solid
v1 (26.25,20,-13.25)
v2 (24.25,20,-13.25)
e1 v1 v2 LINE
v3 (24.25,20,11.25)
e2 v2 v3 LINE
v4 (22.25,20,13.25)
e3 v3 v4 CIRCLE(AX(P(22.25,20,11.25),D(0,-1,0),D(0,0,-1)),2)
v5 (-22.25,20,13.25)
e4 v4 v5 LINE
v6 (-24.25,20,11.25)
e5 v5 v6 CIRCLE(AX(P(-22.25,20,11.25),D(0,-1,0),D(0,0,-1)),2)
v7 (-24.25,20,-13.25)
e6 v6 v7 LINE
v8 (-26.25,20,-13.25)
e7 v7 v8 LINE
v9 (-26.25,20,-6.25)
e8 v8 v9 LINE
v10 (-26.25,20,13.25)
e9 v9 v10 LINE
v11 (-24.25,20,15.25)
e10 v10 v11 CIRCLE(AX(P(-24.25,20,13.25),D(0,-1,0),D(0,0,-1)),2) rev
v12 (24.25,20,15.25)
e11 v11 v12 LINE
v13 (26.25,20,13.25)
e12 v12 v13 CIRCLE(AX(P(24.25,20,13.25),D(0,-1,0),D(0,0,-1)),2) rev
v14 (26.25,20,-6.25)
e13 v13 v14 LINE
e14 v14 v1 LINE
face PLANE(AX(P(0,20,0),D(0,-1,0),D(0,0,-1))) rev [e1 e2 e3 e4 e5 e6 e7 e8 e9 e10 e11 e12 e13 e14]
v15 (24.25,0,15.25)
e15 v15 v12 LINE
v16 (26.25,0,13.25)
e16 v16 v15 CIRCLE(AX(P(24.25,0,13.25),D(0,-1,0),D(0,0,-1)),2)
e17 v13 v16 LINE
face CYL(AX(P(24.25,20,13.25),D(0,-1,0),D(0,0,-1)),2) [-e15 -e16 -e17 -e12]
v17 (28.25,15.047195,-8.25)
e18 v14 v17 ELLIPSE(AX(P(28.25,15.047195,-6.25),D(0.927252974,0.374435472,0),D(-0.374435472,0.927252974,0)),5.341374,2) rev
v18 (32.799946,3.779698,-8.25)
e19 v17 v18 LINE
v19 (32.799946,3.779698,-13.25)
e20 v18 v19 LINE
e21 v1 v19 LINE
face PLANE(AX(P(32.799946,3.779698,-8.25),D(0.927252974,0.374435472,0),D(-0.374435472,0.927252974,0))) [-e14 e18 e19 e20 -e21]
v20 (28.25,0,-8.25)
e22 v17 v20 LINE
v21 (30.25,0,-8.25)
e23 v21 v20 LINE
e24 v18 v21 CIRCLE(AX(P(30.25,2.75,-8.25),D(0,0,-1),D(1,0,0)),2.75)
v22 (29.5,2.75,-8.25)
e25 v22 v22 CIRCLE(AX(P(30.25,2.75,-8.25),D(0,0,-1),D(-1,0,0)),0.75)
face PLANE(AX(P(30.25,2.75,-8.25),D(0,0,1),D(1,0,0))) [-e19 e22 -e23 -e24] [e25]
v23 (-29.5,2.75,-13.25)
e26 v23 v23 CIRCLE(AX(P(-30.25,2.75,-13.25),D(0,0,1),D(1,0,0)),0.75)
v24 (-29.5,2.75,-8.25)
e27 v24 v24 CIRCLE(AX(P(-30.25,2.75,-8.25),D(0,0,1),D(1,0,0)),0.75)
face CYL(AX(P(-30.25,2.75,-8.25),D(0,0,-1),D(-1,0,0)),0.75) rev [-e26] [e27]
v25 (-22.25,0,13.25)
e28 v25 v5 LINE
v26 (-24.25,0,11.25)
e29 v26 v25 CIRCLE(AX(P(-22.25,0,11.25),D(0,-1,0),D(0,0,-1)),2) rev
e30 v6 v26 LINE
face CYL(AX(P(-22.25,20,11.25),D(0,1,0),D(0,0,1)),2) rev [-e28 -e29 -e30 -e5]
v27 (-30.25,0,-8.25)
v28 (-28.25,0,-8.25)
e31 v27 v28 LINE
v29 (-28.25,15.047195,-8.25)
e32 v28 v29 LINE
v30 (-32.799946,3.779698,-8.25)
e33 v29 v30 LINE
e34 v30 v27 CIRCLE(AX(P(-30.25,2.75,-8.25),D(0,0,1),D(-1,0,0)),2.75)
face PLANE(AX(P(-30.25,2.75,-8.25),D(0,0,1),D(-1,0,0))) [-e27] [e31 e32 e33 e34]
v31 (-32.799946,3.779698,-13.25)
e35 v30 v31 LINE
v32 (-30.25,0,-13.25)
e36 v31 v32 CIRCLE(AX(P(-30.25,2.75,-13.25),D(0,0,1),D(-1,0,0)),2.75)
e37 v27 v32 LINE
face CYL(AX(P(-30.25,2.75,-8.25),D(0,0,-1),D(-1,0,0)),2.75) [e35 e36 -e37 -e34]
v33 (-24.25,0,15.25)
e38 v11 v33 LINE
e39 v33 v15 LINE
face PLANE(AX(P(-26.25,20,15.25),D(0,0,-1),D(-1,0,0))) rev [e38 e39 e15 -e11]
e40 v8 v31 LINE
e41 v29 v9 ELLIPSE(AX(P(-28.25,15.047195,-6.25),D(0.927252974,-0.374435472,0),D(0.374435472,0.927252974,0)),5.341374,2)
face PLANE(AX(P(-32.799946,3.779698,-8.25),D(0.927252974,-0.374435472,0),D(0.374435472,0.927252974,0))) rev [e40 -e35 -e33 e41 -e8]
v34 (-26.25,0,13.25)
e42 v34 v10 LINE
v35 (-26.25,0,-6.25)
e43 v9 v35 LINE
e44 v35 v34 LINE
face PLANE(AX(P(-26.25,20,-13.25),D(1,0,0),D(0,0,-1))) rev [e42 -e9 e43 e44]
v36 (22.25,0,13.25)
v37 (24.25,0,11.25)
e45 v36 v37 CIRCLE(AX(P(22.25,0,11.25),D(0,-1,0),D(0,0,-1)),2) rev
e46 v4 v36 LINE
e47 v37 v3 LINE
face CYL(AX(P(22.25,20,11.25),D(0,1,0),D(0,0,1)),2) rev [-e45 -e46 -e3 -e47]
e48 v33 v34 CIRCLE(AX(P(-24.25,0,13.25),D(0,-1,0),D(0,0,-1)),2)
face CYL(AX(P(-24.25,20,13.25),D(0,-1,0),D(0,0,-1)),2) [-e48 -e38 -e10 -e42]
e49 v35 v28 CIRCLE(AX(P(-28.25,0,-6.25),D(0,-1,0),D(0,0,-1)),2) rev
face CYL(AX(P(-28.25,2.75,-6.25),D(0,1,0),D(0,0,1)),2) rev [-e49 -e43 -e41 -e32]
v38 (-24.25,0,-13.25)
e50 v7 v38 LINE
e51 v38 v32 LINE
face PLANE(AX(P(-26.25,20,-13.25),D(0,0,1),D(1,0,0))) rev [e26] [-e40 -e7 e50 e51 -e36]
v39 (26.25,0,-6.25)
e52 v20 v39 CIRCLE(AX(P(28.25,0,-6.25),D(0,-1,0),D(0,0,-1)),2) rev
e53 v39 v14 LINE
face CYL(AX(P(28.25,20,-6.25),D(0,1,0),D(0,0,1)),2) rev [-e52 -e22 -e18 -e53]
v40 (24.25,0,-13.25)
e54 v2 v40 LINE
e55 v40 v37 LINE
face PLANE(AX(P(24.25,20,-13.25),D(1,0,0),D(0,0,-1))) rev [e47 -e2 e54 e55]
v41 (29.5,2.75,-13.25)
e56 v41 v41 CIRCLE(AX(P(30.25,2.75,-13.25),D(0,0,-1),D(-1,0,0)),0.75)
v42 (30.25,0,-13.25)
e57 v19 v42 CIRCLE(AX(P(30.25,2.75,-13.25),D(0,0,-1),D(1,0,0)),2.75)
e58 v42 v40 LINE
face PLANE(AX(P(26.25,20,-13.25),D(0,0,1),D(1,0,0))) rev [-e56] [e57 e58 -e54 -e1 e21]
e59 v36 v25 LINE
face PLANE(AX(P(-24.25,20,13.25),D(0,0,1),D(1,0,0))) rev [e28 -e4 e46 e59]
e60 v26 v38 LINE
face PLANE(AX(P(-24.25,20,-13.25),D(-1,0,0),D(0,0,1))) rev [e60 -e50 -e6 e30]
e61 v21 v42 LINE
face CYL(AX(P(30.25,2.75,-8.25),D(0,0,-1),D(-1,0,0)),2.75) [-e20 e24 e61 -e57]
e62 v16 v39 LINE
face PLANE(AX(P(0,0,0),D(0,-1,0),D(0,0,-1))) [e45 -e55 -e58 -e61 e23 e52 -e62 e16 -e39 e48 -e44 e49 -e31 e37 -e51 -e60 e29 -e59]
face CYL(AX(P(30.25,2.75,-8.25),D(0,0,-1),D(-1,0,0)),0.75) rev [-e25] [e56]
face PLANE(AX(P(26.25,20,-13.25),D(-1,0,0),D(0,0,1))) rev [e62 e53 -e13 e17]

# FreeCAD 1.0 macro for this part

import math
import FreeCAD as App
import Part
import Sketcher

V = App.Vector


def edges_at(feature, points):
    """Names of the edges that pass closest to the given points."""
    edges = feature.Shape.Edges
    near = lambda p: min(range(len(edges)), key=lambda i: edges[i].distToShape(Part.Vertex(*p))[0])
    return sorted({f"Edge{near(p) + 1}" for p in points})


def add_polygon(sketch, points):
    """Adds a closed chain of lines whose ends are joined by coincident constraints."""
    first, n = sketch.GeometryCount, len(points)
    for a, b in zip(points, points[1:] + points[:1]):
        sketch.addGeometry(Part.LineSegment(App.Vector(*a, 0), App.Vector(*b, 0)), False)
    for i in range(n):
        sketch.addConstraint(Sketcher.Constraint("Coincident", first + i, 2, first + (i + 1) % n, 1))

doc = App.newDocument("Part")
params = doc.addObject("Spreadsheet::Sheet", "Params")
for row, (alias, value) in enumerate([
    ("sketch1_width", "2 mm"),
    ("sketch1_width2", "48.5 mm"),
    ("sketch1_height", "28.5 mm"),
    ("sketch1_height2", "26.5 mm"),
    ("pad1_length", "20 mm"),
    ("fillet_radius", "2 mm"),
    ("sketch2_diameter", "1.5 mm"),
    ("sketch2_width", "4 mm"),
    ("sketch2_height", "20 mm"),
    ("sketch2_radius", "2.75 mm"),
    ("pad2_length", "5 mm"),
    ("fillet2_radius", "2 mm"),
], start=1):
    params.set(f"A{row}", alias)
    params.set(f"B{row}", "=" + value)
    params.setAlias(f"B{row}", alias)

body = doc.addObject("PartDesign::Body", "Body")

# Sketch on XZ plane
sketch1 = body.newObject("Sketcher::SketchObject", "Sketch")
sketch1.AttachmentSupport = (doc.getObject("XZ_Plane"), [""])
sketch1.MapMode = "FlatFace"
add_polygon(sketch1, [(26.2, 15.2), (26.2, -13.2), (24.2, -13.2), (24.2, 13.2), (-24.2, 13.2), (-24.2, -13.2), (-26.2, -13.2), (-26.2, 15.2)])  # lines 0-7
sketch1.addConstraint(Sketcher.Constraint("Vertical", 0))
sketch1.addConstraint(Sketcher.Constraint("Horizontal", 1))
sketch1.addConstraint(Sketcher.Constraint("Vertical", 2))
sketch1.addConstraint(Sketcher.Constraint("Horizontal", 3))
sketch1.addConstraint(Sketcher.Constraint("Vertical", 4))
sketch1.addConstraint(Sketcher.Constraint("Horizontal", 5))
sketch1.addConstraint(Sketcher.Constraint("Vertical", 6))
sketch1.addConstraint(Sketcher.Constraint("Horizontal", 7))
sketch1.addConstraint(Sketcher.Constraint("Symmetric", 1, 2, 3, 2, -1, 1))
sketch1.addConstraint(Sketcher.Constraint("Symmetric", 0, 2, 5, 2, -2))
sketch1.addConstraint(Sketcher.Constraint("DistanceX", 1, 2, 1, 1, 2.0))
sketch1.addConstraint(Sketcher.Constraint("DistanceX", 3, 2, 3, 1, 48.5))
sketch1.addConstraint(Sketcher.Constraint("DistanceY", 0, 2, 0, 1, 28.5))
sketch1.addConstraint(Sketcher.Constraint("DistanceY", 2, 1, 2, 2, 26.5))
sketch1.setExpression("Constraints[18]", "Params.sketch1_width")
sketch1.setExpression("Constraints[19]", "Params.sketch1_width2")
sketch1.setExpression("Constraints[20]", "Params.sketch1_height")
sketch1.setExpression("Constraints[21]", "Params.sketch1_height2")
pad1 = body.newObject("PartDesign::Pad", "Pad")
pad1.Profile = sketch1
pad1.setExpression("Length", "Params.pad1_length")
pad1.Reversed = True
doc.recompute()

fillet = body.newObject("PartDesign::Fillet", "Fillet")
fillet.Base = (pad1, edges_at(pad1, [
    (-24.25, 10, 13.25),
    (24.25, 10, 13.25),
    (26.25, 10, 15.25),
    (-26.25, 10, 15.25),
]))
fillet.setExpression("Radius", "Params.fillet_radius")

# Sketch on XY plane
sketch2 = body.newObject("Sketcher::SketchObject", "Sketch001")
sketch2.AttachmentSupport = (doc.getObject("XY_Plane"), [""])
sketch2.MapMode = "FlatFace"
sketch2.AttachmentOffset = App.Placement(V(0, 0, -13.25), App.Rotation())
sketch2.addGeometry(Part.LineSegment(V(30.2, 0, 0), V(26.2, 0, 0)), False)
sketch2.addGeometry(Part.LineSegment(V(26.2, 0, 0), V(26.2, 20, 0)), False)
sketch2.addGeometry(Part.LineSegment(V(26.2, 20, 0), V(32.8, 3.8, 0)), False)
sketch2.addGeometry(Part.ArcOfCircle(Part.Circle(V(30.2, 2.8, 0), V(0, 0, 1), 2.8), math.radians(-90), math.radians(22)), False)
sketch2.addGeometry(Part.Circle(V(30.2, 2.8, 0), V(0, 0, 1), 0.8), False)
sketch2.addConstraint(Sketcher.Constraint("Coincident", 0, 2, 1, 1))
sketch2.addConstraint(Sketcher.Constraint("Coincident", 1, 2, 2, 1))
sketch2.addConstraint(Sketcher.Constraint("Tangent", 2, 2, 3, 2))
sketch2.addConstraint(Sketcher.Constraint("Tangent", 3, 1, 0, 1))
sketch2.addConstraint(Sketcher.Constraint("Horizontal", 0))
sketch2.addConstraint(Sketcher.Constraint("Vertical", 1))
sketch2.addConstraint(Sketcher.Constraint("Coincident", 4, 3, 3, 3))
sketch2.addConstraint(Sketcher.Constraint("PointOnObject", 0, 2, -1))
sketch2.addConstraint(Sketcher.Constraint("Diameter", 4, 1.5))
sketch2.addConstraint(Sketcher.Constraint("DistanceX", 0, 2, 0, 1, 4.0))
sketch2.addConstraint(Sketcher.Constraint("DistanceY", 1, 1, 1, 2, 20.0))
sketch2.addConstraint(Sketcher.Constraint("Radius", 3, 2.75))
sketch2.addConstraint(Sketcher.Constraint("DistanceX", -1, 1, 3, 3, 30.25))
sketch2.setExpression("Constraints[8]", "Params.sketch2_diameter")
sketch2.setExpression("Constraints[9]", "Params.sketch2_width")
sketch2.setExpression("Constraints[10]", "Params.sketch2_height")
sketch2.setExpression("Constraints[11]", "Params.sketch2_radius")
pad2 = body.newObject("PartDesign::Pad", "Pad001")
pad2.Profile = sketch2
pad2.setExpression("Length", "Params.pad2_length")
doc.recompute()

mirrored = body.newObject("PartDesign::Mirrored", "Mirrored")
mirrored.Originals = [pad2]
mirrored.MirrorPlane = (doc.getObject("YZ_Plane"), [""])
body.Tip = mirrored
doc.recompute()

fillet2 = body.newObject("PartDesign::Fillet", "Fillet001")
fillet2.Base = (mirrored, edges_at(mirrored, [(26.25, 10, -8.25), (-26.25, 10, -8.25)]))
fillet2.setExpression("Radius", "Params.fillet2_radius")

doc.recompute()
